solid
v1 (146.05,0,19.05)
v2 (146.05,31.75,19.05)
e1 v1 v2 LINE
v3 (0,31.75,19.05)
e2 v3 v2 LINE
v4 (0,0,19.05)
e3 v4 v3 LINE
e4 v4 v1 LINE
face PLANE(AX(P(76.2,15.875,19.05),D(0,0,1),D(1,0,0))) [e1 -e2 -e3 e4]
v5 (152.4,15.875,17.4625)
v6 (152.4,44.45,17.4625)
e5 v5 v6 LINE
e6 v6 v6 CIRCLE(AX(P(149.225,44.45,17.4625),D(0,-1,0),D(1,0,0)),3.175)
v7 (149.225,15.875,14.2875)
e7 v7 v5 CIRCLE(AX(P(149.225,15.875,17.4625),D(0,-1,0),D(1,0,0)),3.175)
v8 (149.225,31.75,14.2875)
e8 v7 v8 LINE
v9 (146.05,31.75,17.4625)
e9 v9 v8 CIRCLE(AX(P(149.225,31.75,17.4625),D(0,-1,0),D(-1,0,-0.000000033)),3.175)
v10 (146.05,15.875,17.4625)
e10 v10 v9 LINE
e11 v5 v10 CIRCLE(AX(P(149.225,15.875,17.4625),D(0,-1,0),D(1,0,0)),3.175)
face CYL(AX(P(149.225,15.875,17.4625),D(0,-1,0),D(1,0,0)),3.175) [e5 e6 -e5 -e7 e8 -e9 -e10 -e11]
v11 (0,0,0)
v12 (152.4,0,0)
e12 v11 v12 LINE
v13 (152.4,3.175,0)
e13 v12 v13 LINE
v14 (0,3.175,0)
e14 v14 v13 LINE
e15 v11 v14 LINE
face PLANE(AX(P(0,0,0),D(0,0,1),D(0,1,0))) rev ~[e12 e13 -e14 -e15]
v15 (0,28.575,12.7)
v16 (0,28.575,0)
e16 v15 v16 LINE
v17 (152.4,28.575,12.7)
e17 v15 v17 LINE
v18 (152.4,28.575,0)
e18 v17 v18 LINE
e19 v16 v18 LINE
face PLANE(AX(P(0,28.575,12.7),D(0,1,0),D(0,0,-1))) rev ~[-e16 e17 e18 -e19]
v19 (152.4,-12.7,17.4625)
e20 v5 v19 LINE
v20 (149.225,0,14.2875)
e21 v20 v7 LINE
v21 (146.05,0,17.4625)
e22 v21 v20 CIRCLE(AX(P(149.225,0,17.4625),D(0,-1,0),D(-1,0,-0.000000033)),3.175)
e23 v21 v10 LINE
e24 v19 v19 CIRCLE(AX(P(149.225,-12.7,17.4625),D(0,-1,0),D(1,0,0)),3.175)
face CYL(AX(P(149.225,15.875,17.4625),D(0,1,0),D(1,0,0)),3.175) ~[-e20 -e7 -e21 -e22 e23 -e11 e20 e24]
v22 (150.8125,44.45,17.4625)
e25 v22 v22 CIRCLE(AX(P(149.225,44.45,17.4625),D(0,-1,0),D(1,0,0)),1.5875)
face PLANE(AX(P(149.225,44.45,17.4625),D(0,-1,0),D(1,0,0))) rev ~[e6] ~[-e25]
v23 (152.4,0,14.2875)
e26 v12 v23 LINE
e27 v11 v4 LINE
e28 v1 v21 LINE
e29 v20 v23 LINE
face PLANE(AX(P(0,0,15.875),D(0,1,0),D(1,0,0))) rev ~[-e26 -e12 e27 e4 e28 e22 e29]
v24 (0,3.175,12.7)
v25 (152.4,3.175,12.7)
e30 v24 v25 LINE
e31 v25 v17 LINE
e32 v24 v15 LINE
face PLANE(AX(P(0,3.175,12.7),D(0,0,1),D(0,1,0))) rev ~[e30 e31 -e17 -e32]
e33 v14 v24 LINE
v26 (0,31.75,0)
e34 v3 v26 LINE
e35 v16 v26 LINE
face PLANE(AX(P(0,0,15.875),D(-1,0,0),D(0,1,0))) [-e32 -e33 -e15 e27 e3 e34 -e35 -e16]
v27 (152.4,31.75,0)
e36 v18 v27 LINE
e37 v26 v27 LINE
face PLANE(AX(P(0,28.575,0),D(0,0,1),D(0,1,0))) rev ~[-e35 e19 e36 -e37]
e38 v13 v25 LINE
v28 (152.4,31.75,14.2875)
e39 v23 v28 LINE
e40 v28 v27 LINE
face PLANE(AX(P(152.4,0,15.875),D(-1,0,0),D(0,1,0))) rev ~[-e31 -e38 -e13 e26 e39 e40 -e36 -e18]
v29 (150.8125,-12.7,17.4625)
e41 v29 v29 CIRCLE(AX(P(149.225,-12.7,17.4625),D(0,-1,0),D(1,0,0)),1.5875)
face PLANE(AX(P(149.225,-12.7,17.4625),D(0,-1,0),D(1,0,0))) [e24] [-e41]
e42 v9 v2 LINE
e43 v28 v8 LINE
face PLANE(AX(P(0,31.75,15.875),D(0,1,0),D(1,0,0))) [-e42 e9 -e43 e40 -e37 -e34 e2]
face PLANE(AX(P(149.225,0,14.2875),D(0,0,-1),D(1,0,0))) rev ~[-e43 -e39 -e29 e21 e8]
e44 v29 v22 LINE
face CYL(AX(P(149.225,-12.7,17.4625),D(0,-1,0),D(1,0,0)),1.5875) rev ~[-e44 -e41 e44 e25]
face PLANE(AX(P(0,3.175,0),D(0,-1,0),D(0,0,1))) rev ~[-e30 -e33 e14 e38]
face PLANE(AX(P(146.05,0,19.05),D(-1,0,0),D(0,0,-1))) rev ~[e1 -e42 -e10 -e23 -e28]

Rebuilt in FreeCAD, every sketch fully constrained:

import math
import FreeCAD as App
import Part
import Sketcher

V = App.Vector
Q = App.Units.Quantity


def add_polygon(sketch, points):
    """Adds a closed chain of lines whose ends are joined by coincident constraints."""
    first, n = sketch.GeometryCount, len(points)
    for a, b in zip(points, points[1:] + points[:1]):
        sketch.addGeometry(Part.LineSegment(App.Vector(*a, 0), App.Vector(*b, 0)), False)
    for i in range(n):
        sketch.addConstraint(Sketcher.Constraint("Coincident", first + i, 2, first + (i + 1) % n, 1))

doc = App.newDocument("Part")
body = doc.addObject("PartDesign::Body", "Body")

sketch1 = body.newObject("Sketcher::SketchObject", "Sketch")
sketch1.AttachmentSupport = (doc.getObject("YZ_Plane"), [""])
sketch1.MapMode = "FlatFace"
add_polygon(sketch1, [(0, 15.875), (0, 0), (3.175, 0), (3.175, 12.7), (28.575, 12.7), (28.575, 0), (31.75, 0), (31.75, 15.875)])
sketch1.addConstraint([
    Sketcher.Constraint("Vertical", 0),
    Sketcher.Constraint("Horizontal", 1),
    Sketcher.Constraint("Vertical", 2),
    Sketcher.Constraint("Horizontal", 3),
    Sketcher.Constraint("Vertical", 4),
    Sketcher.Constraint("Horizontal", 5),
    Sketcher.Constraint("Vertical", 6),
    Sketcher.Constraint("Horizontal", 7),
    Sketcher.Constraint("Coincident", 0, 2, -1, 1),
    Sketcher.Constraint("PointOnObject", 4, 2, -1),
    Sketcher.Constraint("Equal", 1, 5),
    Sketcher.Constraint("DistanceX", 3, 1, 3, 2, Q("1 in")),
    Sketcher.Constraint("DistanceY", 2, 1, 2, 2, Q("0.5 in")),
    Sketcher.Constraint("DistanceX", 7, 2, 7, 1, Q("1.25 in")),
    Sketcher.Constraint("DistanceY", 0, 2, 0, 1, Q("0.625 in")),
])
pad1 = body.newObject("PartDesign::Pad", "Pad")
pad1.Profile = sketch1
pad1.Length = Q("6 in")

sketch2 = body.newObject("Sketcher::SketchObject", "Sketch001")
sketch2.AttachmentSupport = (doc.getObject("XY_Plane"), [""])
sketch2.MapMode = "FlatFace"
sketch2.AttachmentOffset = App.Placement(V(0, 0, 0.625 * 25.4), App.Rotation())
add_polygon(sketch2, [(0, 31.75), (0, 0), (152.4, 0), (152.4, 31.75)])
sketch2.addConstraint([
    Sketcher.Constraint("Vertical", 0),
    Sketcher.Constraint("Horizontal", 1),
    Sketcher.Constraint("Vertical", 2),
    Sketcher.Constraint("Horizontal", 3),
    Sketcher.Constraint("Coincident", 0, 2, -1, 1),
    Sketcher.Constraint("DistanceX", 1, 1, 1, 2, Q("6 in")),
    Sketcher.Constraint("DistanceY", 0, 2, 0, 1, Q("1.25 in")),
])
pad2 = body.newObject("PartDesign::Pad", "Pad001")
pad2.Profile = sketch2
pad2.Length = Q("0.125 in")

sketch3 = body.newObject("Sketcher::SketchObject", "Sketch002")
sketch3.AttachmentSupport = (doc.getObject("XZ_Plane"), [""])
sketch3.MapMode = "FlatFace"
sketch3.addGeometry([
    Part.LineSegment(V(146.05, 19.05, 0), V(146.05, 17.4625, 0)),
    Part.ArcOfCircle(Part.Circle(V(149.225, 17.4625, 0), V(0, 0, 1), 3.175), math.radians(-179.999998), math.radians(-90.000002)),
    Part.LineSegment(V(149.225, 14.2875, 0), V(152.4, 14.2875, 0)),
    Part.LineSegment(V(152.4, 14.2875, 0), V(152.4, 19.05, 0)),
    Part.LineSegment(V(152.4, 19.05, 0), V(146.05, 19.05, 0)),
], False)
sketch3.addConstraint([
    Sketcher.Constraint("Tangent", 0, 2, 1, 1),
    Sketcher.Constraint("Tangent", 1, 2, 2, 1),
    Sketcher.Constraint("Coincident", 2, 2, 3, 1),
    Sketcher.Constraint("Coincident", 3, 2, 4, 1),
    Sketcher.Constraint("Coincident", 4, 2, 0, 1),
    Sketcher.Constraint("Vertical", 0),
    Sketcher.Constraint("Horizontal", 2),
    Sketcher.Constraint("Vertical", 3),
    Sketcher.Constraint("Horizontal", 4),
    Sketcher.Constraint("DistanceX", -1, 1, 2, 2, Q("6 in")),
    Sketcher.Constraint("Radius", 1, Q("0.125 in")),
    Sketcher.Constraint("DistanceX", 4, 2, 4, 1, Q("0.25 in")),
    Sketcher.Constraint("DistanceY", 0, 2, 0, 1, Q("0.0625 in")),
    Sketcher.Constraint("DistanceY", -1, 1, 3, 2, Q("0.75 in")),
])
pocket1 = body.newObject("PartDesign::Pocket", "Pocket")
pocket1.Profile = sketch3
pocket1.Type = "ThroughAll"

sketch4 = body.newObject("Sketcher::SketchObject", "Sketch003")
sketch4.AttachmentSupport = (doc.getObject("XZ_Plane"), [""])
sketch4.MapMode = "FlatFace"
sketch4.AttachmentOffset = App.Placement(V(0, 0, -0.625 * 25.4), App.Rotation())
sketch4.addGeometry(Part.Circle(V(149.225, 17.4625, 0), V(0, 0, 1), 3.175), False)
sketch4.addConstraint([
    Sketcher.Constraint("Diameter", 0, Q("0.25 in")),
    Sketcher.Constraint("DistanceX", -1, 1, 0, 3, Q("5.875 in")),
    Sketcher.Constraint("DistanceY", -1, 1, 0, 3, Q("0.6875 in")),
])
pad3 = body.newObject("PartDesign::Pad", "Pad002")
pad3.Profile = sketch4
pad3.Type = "TwoLengths"
pad3.Length = Q("1.125 in")
pad3.Length2 = Q("1.125 in")

sketch5 = body.newObject("Sketcher::SketchObject", "Sketch004")
sketch5.AttachmentSupport = (doc.getObject("XZ_Plane"), [""])
sketch5.MapMode = "FlatFace"
sketch5.AttachmentOffset = App.Placement(V(0, 0, 0.5 * 25.4), App.Rotation())
sketch5.addGeometry(Part.Circle(V(149.225, 17.4625, 0), V(0, 0, 1), 1.5875), False)
sketch5.addConstraint([
    Sketcher.Constraint("Diameter", 0, Q("0.125 in")),
    Sketcher.Constraint("DistanceX", -1, 1, 0, 3, Q("5.875 in")),
    Sketcher.Constraint("DistanceY", -1, 1, 0, 3, Q("0.6875 in")),
])
pocket2 = body.newObject("PartDesign::Pocket", "Pocket001")
pocket2.Profile = sketch5
pocket2.Type = "ThroughAll"

doc.recompute()
